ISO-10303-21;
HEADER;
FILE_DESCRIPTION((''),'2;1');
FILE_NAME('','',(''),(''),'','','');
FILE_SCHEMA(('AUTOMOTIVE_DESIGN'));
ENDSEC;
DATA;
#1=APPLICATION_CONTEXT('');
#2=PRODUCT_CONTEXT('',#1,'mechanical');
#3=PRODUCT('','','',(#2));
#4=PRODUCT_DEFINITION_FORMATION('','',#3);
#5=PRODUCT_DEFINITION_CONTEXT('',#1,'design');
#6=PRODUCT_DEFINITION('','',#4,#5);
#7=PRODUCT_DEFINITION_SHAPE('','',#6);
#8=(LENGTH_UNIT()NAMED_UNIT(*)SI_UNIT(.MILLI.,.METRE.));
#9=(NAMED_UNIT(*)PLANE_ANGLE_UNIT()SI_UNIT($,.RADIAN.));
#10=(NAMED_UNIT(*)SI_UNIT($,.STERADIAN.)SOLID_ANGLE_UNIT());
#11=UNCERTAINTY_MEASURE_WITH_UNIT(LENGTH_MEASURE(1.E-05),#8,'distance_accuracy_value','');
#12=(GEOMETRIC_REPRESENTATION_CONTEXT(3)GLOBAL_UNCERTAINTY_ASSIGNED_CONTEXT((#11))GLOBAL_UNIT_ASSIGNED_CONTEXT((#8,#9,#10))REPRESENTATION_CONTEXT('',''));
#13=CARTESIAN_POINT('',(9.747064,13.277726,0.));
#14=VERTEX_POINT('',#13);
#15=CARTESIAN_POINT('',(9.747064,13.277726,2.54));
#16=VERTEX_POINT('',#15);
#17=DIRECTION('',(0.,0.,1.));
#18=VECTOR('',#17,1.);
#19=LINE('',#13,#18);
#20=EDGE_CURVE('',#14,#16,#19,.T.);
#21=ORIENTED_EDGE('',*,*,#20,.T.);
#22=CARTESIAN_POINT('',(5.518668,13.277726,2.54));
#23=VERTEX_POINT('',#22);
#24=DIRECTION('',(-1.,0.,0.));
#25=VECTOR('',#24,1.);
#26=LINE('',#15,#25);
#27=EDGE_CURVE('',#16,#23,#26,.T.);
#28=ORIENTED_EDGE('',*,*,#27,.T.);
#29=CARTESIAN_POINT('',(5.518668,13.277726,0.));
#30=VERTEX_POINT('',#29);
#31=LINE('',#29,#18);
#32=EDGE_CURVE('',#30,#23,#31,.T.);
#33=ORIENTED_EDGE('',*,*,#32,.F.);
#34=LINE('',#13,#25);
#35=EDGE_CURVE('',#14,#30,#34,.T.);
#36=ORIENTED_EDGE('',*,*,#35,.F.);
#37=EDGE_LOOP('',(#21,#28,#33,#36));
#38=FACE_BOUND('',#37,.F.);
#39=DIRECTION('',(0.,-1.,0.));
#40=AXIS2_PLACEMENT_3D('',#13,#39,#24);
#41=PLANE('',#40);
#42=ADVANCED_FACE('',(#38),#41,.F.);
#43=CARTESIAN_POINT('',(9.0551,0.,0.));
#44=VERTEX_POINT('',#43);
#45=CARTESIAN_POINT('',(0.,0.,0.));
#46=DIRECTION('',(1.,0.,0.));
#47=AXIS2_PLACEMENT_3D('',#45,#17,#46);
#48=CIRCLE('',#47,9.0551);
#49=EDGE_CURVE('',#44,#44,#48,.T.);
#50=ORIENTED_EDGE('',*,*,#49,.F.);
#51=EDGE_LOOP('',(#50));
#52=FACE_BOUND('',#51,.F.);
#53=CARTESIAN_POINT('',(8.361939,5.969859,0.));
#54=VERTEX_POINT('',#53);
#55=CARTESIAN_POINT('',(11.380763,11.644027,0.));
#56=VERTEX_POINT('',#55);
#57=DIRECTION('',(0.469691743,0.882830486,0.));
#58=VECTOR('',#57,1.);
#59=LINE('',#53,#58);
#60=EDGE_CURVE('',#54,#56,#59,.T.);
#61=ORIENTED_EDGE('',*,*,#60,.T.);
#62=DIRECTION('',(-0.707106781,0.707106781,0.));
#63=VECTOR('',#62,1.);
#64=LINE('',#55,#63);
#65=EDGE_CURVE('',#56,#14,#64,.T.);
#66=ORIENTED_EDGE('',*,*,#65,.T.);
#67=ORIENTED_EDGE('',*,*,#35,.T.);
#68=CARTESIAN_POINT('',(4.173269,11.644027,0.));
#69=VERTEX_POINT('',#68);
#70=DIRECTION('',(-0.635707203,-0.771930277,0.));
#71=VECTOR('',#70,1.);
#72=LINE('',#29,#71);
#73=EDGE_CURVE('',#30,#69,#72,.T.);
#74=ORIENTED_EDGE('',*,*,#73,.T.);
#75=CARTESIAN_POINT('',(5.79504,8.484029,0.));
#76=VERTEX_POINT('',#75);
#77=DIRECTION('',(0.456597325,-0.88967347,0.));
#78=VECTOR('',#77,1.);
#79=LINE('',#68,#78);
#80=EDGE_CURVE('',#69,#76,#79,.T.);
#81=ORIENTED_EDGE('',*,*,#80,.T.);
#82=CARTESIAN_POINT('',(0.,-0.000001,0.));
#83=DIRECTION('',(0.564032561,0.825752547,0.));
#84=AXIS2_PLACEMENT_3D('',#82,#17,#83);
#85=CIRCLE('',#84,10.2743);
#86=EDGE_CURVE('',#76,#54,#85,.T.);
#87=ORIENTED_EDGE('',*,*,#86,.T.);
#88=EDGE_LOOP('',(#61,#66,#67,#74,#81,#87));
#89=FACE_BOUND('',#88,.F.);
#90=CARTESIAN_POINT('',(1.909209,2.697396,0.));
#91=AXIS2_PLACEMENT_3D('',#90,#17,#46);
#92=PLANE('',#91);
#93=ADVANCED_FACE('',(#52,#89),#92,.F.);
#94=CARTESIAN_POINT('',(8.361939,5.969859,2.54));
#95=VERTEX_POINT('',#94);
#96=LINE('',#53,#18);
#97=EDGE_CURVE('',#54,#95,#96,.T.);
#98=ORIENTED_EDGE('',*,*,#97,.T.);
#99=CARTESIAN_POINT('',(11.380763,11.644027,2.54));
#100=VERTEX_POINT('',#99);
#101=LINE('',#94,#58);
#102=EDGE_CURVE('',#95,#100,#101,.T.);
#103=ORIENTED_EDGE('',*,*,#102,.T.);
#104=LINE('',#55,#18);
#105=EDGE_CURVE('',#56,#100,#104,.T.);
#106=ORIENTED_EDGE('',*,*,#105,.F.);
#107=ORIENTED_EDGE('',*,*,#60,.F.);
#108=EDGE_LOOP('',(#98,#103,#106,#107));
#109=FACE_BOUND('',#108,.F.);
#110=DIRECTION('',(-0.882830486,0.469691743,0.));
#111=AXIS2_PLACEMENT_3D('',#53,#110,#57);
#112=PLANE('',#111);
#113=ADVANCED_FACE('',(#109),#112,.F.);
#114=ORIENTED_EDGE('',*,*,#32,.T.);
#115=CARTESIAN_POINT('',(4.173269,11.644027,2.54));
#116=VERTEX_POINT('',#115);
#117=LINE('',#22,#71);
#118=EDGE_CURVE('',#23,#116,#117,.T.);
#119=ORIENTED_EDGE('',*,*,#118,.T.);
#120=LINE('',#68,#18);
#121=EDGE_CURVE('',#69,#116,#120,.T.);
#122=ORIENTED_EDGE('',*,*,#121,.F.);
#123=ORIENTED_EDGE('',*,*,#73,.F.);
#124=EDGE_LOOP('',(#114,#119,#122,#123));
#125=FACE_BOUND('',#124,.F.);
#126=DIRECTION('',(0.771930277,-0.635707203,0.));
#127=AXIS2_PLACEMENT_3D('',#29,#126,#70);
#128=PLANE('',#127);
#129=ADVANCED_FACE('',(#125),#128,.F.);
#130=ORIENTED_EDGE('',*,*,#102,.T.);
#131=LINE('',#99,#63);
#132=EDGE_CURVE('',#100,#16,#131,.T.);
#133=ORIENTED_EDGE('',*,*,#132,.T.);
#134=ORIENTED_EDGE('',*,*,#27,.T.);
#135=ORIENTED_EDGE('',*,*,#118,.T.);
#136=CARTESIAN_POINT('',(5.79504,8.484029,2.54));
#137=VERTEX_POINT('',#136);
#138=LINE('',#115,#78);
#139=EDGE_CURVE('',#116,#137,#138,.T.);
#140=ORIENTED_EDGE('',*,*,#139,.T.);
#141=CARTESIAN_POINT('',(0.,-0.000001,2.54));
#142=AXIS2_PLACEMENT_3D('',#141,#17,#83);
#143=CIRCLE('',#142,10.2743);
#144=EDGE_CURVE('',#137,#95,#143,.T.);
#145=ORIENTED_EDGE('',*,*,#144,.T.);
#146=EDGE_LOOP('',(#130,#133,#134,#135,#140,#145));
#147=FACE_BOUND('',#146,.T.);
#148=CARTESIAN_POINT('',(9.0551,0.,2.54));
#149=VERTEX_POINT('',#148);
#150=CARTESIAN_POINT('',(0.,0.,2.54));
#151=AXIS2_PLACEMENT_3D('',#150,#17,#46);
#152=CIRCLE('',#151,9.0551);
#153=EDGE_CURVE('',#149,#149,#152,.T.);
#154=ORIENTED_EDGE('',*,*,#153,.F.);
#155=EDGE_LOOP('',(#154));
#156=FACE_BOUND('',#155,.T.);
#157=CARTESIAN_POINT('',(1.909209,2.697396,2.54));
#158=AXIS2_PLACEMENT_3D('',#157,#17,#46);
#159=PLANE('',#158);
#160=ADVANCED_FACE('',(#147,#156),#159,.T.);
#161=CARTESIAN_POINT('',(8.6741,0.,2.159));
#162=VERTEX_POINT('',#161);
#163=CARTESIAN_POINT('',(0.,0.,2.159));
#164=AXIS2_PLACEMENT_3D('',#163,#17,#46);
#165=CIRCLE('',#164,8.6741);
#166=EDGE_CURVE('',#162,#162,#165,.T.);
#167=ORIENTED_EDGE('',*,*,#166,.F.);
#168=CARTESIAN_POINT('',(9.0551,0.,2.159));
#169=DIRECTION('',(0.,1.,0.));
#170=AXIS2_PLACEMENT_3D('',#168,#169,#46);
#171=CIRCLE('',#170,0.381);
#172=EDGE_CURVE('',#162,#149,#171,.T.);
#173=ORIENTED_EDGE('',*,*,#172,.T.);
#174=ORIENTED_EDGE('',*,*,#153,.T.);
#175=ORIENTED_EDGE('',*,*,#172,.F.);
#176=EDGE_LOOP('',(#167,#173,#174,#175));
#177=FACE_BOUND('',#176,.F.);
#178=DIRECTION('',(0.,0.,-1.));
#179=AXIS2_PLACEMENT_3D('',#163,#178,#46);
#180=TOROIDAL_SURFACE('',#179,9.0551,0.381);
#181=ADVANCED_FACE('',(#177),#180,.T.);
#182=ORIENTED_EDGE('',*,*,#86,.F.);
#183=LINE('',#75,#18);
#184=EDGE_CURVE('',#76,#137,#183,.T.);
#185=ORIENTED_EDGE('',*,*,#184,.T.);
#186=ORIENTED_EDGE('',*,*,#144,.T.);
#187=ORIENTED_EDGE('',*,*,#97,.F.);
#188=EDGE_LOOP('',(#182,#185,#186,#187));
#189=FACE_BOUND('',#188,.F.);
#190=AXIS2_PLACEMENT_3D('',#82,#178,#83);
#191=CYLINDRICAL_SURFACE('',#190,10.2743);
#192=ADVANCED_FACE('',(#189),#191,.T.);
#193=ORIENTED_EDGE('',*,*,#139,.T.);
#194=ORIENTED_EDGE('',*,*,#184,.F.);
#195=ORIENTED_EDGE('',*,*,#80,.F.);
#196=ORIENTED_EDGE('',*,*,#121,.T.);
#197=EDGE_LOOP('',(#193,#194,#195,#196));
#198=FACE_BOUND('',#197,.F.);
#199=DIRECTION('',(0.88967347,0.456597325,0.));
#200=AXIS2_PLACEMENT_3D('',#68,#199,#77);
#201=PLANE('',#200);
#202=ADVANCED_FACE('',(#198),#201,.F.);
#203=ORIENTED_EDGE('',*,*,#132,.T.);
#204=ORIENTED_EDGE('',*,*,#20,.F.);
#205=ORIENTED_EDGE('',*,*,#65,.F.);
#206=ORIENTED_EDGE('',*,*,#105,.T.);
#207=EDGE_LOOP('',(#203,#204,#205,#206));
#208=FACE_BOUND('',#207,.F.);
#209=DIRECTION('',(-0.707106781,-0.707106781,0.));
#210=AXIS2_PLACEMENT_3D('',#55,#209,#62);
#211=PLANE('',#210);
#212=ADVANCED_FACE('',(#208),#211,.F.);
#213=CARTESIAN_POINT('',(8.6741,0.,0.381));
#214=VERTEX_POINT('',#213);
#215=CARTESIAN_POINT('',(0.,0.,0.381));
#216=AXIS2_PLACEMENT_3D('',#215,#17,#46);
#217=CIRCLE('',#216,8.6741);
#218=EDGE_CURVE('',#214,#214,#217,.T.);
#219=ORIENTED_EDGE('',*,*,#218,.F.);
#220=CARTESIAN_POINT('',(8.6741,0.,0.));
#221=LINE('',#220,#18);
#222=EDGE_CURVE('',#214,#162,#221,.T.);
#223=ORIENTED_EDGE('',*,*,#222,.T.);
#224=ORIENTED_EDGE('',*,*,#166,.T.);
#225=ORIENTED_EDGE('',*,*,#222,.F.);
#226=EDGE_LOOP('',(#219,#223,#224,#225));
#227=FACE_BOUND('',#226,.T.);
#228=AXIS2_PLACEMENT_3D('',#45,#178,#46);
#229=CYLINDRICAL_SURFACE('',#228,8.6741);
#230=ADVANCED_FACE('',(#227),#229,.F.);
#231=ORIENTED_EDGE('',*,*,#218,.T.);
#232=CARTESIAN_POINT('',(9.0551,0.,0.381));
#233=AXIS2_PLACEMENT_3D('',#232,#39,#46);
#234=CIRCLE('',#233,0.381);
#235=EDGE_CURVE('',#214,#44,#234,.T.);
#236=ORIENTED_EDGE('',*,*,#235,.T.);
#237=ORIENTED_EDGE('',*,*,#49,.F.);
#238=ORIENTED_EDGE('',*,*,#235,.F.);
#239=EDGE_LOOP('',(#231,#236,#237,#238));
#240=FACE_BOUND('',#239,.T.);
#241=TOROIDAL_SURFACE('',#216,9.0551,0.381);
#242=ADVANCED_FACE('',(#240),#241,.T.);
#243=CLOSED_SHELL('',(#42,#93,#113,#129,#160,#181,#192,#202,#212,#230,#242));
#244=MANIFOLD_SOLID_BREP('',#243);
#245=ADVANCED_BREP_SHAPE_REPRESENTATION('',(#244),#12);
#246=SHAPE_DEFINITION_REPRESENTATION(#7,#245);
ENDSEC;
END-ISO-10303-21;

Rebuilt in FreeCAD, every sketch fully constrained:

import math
import FreeCAD as App
import Part
import Sketcher
from FreeCAD import Vector
Q = App.Units.Quantity


def edges_at(feature, points):
    """Names of the edges that pass closest to the given points."""
    edges = feature.Shape.Edges
    near = lambda p: min(range(len(edges)), key=lambda i: edges[i].distToShape(Part.Vertex(*p))[0])
    return sorted({f"Edge{near(p) + 1}" for p in points})

doc = App.newDocument("Part")
params = doc.addObject("Spreadsheet::Sheet", "Params")
for row, (alias, value) in enumerate([
    ("sketch1_diameter", "0.683 in"),
    ("pad1_length", "0.1 in"),
    ("fillet_radius", "0.015 in"),
], start=1):
    params.set(f"A{row}", alias)
    params.set(f"B{row}", "=" + value)
    params.setAlias(f"B{row}", alias)

body = doc.addObject("PartDesign::Body", "Body")

# Sketch on XY plane
sketch1 = body.newObject("Sketcher::SketchObject", "Sketch")
sketch1.AttachmentSupport = (doc.getObject("XY_Plane"), [""])
sketch1.MapMode = "FlatFace"
sketch1.addGeometry([
    Part.LineSegment(Vector(4.2, 11.6, 0), Vector(5.8, 8.5, 0)),  # 0
    Part.ArcOfCircle(Part.Circle(Vector(0, 0, 0), Vector(0, 0, 1), 10.3), math.radians(56), math.radians(396)),  # 1
    Part.LineSegment(Vector(8.4, 6, 0), Vector(11.4, 11.6, 0)),  # 2
    Part.LineSegment(Vector(11.4, 11.6, 0), Vector(9.7, 13.3, 0)),  # 3
    Part.LineSegment(Vector(9.7, 13.3, 0), Vector(5.5, 13.3, 0)),  # 4
    Part.LineSegment(Vector(5.5, 13.3, 0), Vector(4.2, 11.6, 0)),  # 5
    Part.Circle(Vector(0, 0, 0), Vector(0, 0, 1), 8.7),  # 6
], False)
sketch1.addConstraint([
    Sketcher.Constraint("Coincident", 0, 2, 1, 1),
    Sketcher.Constraint("Coincident", 1, 2, 2, 1),
    Sketcher.Constraint("Coincident", 2, 2, 3, 1),
    Sketcher.Constraint("Coincident", 3, 2, 4, 1),
    Sketcher.Constraint("Coincident", 4, 2, 5, 1),
    Sketcher.Constraint("Coincident", 5, 2, 0, 1),
    Sketcher.Constraint("Horizontal", 4),
    Sketcher.Constraint("Coincident", 1, 3, -1, 1),
    Sketcher.Constraint("Coincident", 6, 3, -1, 1),
    Sketcher.Constraint("Horizontal", 2, 2, 5, 2),
    Sketcher.Constraint("Diameter", 6, Q("0.683 in")),
    Sketcher.Constraint("Angle", 3, Q("135 deg")),
    Sketcher.Constraint("Radius", 1, Q("0.4045 in")),
    Sketcher.Constraint("Distance", 3, Q("2.310399 mm")),
    Sketcher.Constraint("DistanceX", 0, 2, 1, 2, Q("2.566899 mm")),
    Sketcher.Constraint("DistanceX", 5, 2, 4, 2, Q("1.345399 mm")),
    Sketcher.Constraint("DistanceX", 4, 2, 4, 1, Q("4.228396 mm")),
    Sketcher.Constraint("DistanceX", -1, 1, 0, 2, Q("5.79504 mm")),
    Sketcher.Constraint("DistanceX", -1, 1, 5, 2, Q("4.173269 mm")),
    Sketcher.Constraint("Distance", 0, Q("3.551863 mm")),
])
sketch1.setExpression("Constraints[10]", "Params.sketch1_diameter")
pad1 = body.newObject("PartDesign::Pad", "Pad")
pad1.Profile = sketch1
pad1.setExpression("Length", "Params.pad1_length")
doc.recompute()

fillet = body.newObject("PartDesign::Fillet", "Fillet")
fillet.Base = (pad1, edges_at(pad1, [(-8.674, 0, 0), (-8.674, 0, 2.54)]))
fillet.setExpression("Radius", "Params.fillet_radius")

doc.recompute()
